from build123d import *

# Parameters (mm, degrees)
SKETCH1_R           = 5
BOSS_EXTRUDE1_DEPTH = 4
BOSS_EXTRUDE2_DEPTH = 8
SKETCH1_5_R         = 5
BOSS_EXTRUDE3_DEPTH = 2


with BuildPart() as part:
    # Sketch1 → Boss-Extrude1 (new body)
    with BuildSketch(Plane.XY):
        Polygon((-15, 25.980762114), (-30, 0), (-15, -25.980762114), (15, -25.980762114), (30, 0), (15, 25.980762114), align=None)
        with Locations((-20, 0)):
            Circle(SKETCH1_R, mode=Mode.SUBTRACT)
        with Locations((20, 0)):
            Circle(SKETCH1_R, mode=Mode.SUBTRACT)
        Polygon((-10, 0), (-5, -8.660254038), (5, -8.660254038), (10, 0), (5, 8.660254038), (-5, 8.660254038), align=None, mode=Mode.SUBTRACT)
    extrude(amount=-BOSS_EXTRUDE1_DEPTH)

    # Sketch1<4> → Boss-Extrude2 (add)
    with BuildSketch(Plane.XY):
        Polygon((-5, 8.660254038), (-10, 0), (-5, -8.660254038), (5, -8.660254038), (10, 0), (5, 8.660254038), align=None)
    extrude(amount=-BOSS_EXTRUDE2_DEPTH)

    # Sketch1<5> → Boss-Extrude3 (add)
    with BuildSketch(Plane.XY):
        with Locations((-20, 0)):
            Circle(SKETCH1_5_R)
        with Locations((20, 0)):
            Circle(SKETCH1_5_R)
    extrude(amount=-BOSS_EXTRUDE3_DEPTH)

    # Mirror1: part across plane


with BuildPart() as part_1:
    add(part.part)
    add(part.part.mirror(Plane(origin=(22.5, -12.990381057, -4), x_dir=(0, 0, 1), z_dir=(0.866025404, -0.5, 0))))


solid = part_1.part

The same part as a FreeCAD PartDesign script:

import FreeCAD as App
import Part
import Sketcher
from FreeCAD import Vector
Q = App.Units.Quantity

doc = App.newDocument("Part")
body = doc.addObject("PartDesign::Body", "Body")

sketch1 = body.newObject("Sketcher::SketchObject", "Sketch")
sketch1.AttachmentSupport = (doc.getObject("XY_Plane"), [""])
sketch1.MapMode = "FlatFace"
sketch1.addGeometry(Part.LineSegment(Vector(-15, 26, 0), Vector(-30, 0, 0)), False)
sketch1.addGeometry(Part.LineSegment(Vector(-30, 0, 0), Vector(-15, -26, 0)), False)
sketch1.addGeometry(Part.LineSegment(Vector(-15, -26, 0), Vector(15, -26, 0)), False)
sketch1.addGeometry(Part.LineSegment(Vector(15, -26, 0), Vector(30, 0, 0)), False)
sketch1.addGeometry(Part.LineSegment(Vector(30, 0, 0), Vector(15, 26, 0)), False)
sketch1.addGeometry(Part.LineSegment(Vector(15, 26, 0), Vector(-15, 26, 0)), False)
sketch1.addGeometry(Part.Circle(Vector(-20, 0, 0), Vector(0, 0, 1), 5), False)
sketch1.addGeometry(Part.Circle(Vector(20, 0, 0), Vector(0, 0, 1), 5), False)
sketch1.addGeometry(Part.LineSegment(Vector(-5, -9, 0), Vector(-10, 0, 0)), False)
sketch1.addGeometry(Part.LineSegment(Vector(-10, 0, 0), Vector(-5, 9, 0)), False)
sketch1.addGeometry(Part.LineSegment(Vector(-5, 9, 0), Vector(5, 9, 0)), False)
sketch1.addGeometry(Part.LineSegment(Vector(5, 9, 0), Vector(10, 0, 0)), False)
sketch1.addGeometry(Part.LineSegment(Vector(10, 0, 0), Vector(5, -9, 0)), False)
sketch1.addGeometry(Part.LineSegment(Vector(5, -9, 0), Vector(-5, -9, 0)), False)
sketch1.addConstraint(Sketcher.Constraint("Coincident", 0, 2, 1, 1))
sketch1.addConstraint(Sketcher.Constraint("Coincident", 1, 2, 2, 1))
sketch1.addConstraint(Sketcher.Constraint("Coincident", 2, 2, 3, 1))
sketch1.addConstraint(Sketcher.Constraint("Coincident", 3, 2, 4, 1))
sketch1.addConstraint(Sketcher.Constraint("Coincident", 4, 2, 5, 1))
sketch1.addConstraint(Sketcher.Constraint("Coincident", 5, 2, 0, 1))
sketch1.addConstraint(Sketcher.Constraint("Coincident", 8, 2, 9, 1))
sketch1.addConstraint(Sketcher.Constraint("Coincident", 9, 2, 10, 1))
sketch1.addConstraint(Sketcher.Constraint("Coincident", 10, 2, 11, 1))
sketch1.addConstraint(Sketcher.Constraint("Coincident", 11, 2, 12, 1))
sketch1.addConstraint(Sketcher.Constraint("Coincident", 12, 2, 13, 1))
sketch1.addConstraint(Sketcher.Constraint("Coincident", 13, 2, 8, 1))
sketch1.addConstraint(Sketcher.Constraint("Horizontal", 2))
sketch1.addConstraint(Sketcher.Constraint("Horizontal", 5))
sketch1.addConstraint(Sketcher.Constraint("Horizontal", 10))
sketch1.addConstraint(Sketcher.Constraint("Horizontal", 13))
sketch1.addConstraint(Sketcher.Constraint("Equal", 6, 7))
sketch1.addConstraint(Sketcher.Constraint("Symmetric", 6, 3, 7, 3, -1, 1))
sketch1.addConstraint(Sketcher.Constraint("Symmetric", 0, 2, 3, 2, -1, 1))
sketch1.addConstraint(Sketcher.Constraint("Symmetric", 1, 2, 4, 2, -1, 1))
sketch1.addConstraint(Sketcher.Constraint("Symmetric", 8, 2, 11, 2, -1, 1))
sketch1.addConstraint(Sketcher.Constraint("Symmetric", 9, 2, 12, 2, -1, 1))
sketch1.addConstraint(Sketcher.Constraint("PointOnObject", 6, 3, -1))
sketch1.addConstraint(Sketcher.Constraint("PointOnObject", 0, 2, -1))
sketch1.addConstraint(Sketcher.Constraint("PointOnObject", 8, 2, -1))
sketch1.addConstraint(Sketcher.Constraint("Parallel", 0, 3))
sketch1.addConstraint(Sketcher.Constraint("Parallel", 4, 8))
sketch1.addConstraint(Sketcher.Constraint("Parallel", 3, 9))
sketch1.addConstraint(Sketcher.Constraint("Parallel", 8, 11))
sketch1.addConstraint(Sketcher.Constraint("Vertical", 2, 2, 4, 2))
sketch1.addConstraint(Sketcher.Constraint("Diameter", 6, 10.0))
sketch1.addConstraint(Sketcher.Constraint("DistanceX", 2, 1, 2, 2, 30.0))
sketch1.addConstraint(Sketcher.Constraint("DistanceX", 10, 1, 10, 2, 10.0))
sketch1.addConstraint(Sketcher.Constraint("Angle", 0, Q("-120 deg")))
sketch1.addConstraint(Sketcher.Constraint("Distance", 0, 30.0))
sketch1.addConstraint(Sketcher.Constraint("Distance", 8, 10.0))
sketch1.addConstraint(Sketcher.Constraint("DistanceX", 6, 3, -1, 1, 20.0))
pad1 = body.newObject("PartDesign::Pad", "Pad")
pad1.Profile = sketch1
pad1.Length = 4
pad1.Reversed = True

sketch2 = body.newObject("Sketcher::SketchObject", "Sketch001")
sketch2.AttachmentSupport = (doc.getObject("XY_Plane"), [""])
sketch2.MapMode = "FlatFace"
sketch2.addGeometry(Part.LineSegment(Vector(-5, 9, 0), Vector(-10, 0, 0)), False)
sketch2.addGeometry(Part.LineSegment(Vector(-10, 0, 0), Vector(-5, -9, 0)), False)
sketch2.addGeometry(Part.LineSegment(Vector(-5, -9, 0), Vector(5, -9, 0)), False)
sketch2.addGeometry(Part.LineSegment(Vector(5, -9, 0), Vector(10, 0, 0)), False)
sketch2.addGeometry(Part.LineSegment(Vector(10, 0, 0), Vector(5, 9, 0)), False)
sketch2.addGeometry(Part.LineSegment(Vector(5, 9, 0), Vector(-5, 9, 0)), False)
sketch2.addConstraint(Sketcher.Constraint("Coincident", 0, 2, 1, 1))
sketch2.addConstraint(Sketcher.Constraint("Coincident", 1, 2, 2, 1))
sketch2.addConstraint(Sketcher.Constraint("Coincident", 2, 2, 3, 1))
sketch2.addConstraint(Sketcher.Constraint("Coincident", 3, 2, 4, 1))
sketch2.addConstraint(Sketcher.Constraint("Coincident", 4, 2, 5, 1))
sketch2.addConstraint(Sketcher.Constraint("Coincident", 5, 2, 0, 1))
sketch2.addConstraint(Sketcher.Constraint("Horizontal", 2))
sketch2.addConstraint(Sketcher.Constraint("Horizontal", 5))
sketch2.addConstraint(Sketcher.Constraint("Symmetric", 0, 2, 3, 2, -1, 1))
sketch2.addConstraint(Sketcher.Constraint("Symmetric", 1, 2, 4, 2, -1, 1))
sketch2.addConstraint(Sketcher.Constraint("PointOnObject", 0, 2, -1))
sketch2.addConstraint(Sketcher.Constraint("Parallel", 0, 3))
sketch2.addConstraint(Sketcher.Constraint("Vertical", 2, 2, 4, 2))
sketch2.addConstraint(Sketcher.Constraint("DistanceX", 2, 1, 2, 2, 10.0))
sketch2.addConstraint(Sketcher.Constraint("Angle", 0, Q("-120 deg")))
sketch2.addConstraint(Sketcher.Constraint("Distance", 0, 10.0))
pad2 = body.newObject("PartDesign::Pad", "Pad001")
pad2.Profile = sketch2
pad2.Length = 8
pad2.Reversed = True

sketch3 = body.newObject("Sketcher::SketchObject", "Sketch002")
sketch3.AttachmentSupport = (doc.getObject("XY_Plane"), [""])
sketch3.MapMode = "FlatFace"
sketch3.addGeometry(Part.Circle(Vector(-20, 0, 0), Vector(0, 0, 1), 5), False)
sketch3.addGeometry(Part.Circle(Vector(20, 0, 0), Vector(0, 0, 1), 5), False)
sketch3.addConstraint(Sketcher.Constraint("Equal", 0, 1))
sketch3.addConstraint(Sketcher.Constraint("Symmetric", 0, 3, 1, 3, -1, 1))
sketch3.addConstraint(Sketcher.Constraint("PointOnObject", 0, 3, -1))
sketch3.addConstraint(Sketcher.Constraint("Diameter", 0, 10.0))
sketch3.addConstraint(Sketcher.Constraint("DistanceX", 0, 3, -1, 1, 20.0))
pad3 = body.newObject("PartDesign::Pad", "Pad002")
pad3.Profile = sketch3
pad3.Length = 2
pad3.Reversed = True
body2 = doc.addObject("PartDesign::Body", "Body001")
doc.recompute()

body2.BaseFeature = body
doc.recompute()

mirroring = doc.addObject("Part::Mirroring", "Mirroring")
mirroring.Source = body
mirroring.Base = Vector(22.5, -12.990381, -4)
mirroring.Normal = Vector(0.866025404, -0.5, 0)
body3 = doc.addObject("PartDesign::Body", "Body002")
body3.BaseFeature = mirroring
boolean = body2.newObject("PartDesign::Boolean", "Boolean")
boolean.Type = "Fuse"
boolean.addObjects([body3])
doc.recompute()
mirroring.Visibility = False

doc.recompute()
